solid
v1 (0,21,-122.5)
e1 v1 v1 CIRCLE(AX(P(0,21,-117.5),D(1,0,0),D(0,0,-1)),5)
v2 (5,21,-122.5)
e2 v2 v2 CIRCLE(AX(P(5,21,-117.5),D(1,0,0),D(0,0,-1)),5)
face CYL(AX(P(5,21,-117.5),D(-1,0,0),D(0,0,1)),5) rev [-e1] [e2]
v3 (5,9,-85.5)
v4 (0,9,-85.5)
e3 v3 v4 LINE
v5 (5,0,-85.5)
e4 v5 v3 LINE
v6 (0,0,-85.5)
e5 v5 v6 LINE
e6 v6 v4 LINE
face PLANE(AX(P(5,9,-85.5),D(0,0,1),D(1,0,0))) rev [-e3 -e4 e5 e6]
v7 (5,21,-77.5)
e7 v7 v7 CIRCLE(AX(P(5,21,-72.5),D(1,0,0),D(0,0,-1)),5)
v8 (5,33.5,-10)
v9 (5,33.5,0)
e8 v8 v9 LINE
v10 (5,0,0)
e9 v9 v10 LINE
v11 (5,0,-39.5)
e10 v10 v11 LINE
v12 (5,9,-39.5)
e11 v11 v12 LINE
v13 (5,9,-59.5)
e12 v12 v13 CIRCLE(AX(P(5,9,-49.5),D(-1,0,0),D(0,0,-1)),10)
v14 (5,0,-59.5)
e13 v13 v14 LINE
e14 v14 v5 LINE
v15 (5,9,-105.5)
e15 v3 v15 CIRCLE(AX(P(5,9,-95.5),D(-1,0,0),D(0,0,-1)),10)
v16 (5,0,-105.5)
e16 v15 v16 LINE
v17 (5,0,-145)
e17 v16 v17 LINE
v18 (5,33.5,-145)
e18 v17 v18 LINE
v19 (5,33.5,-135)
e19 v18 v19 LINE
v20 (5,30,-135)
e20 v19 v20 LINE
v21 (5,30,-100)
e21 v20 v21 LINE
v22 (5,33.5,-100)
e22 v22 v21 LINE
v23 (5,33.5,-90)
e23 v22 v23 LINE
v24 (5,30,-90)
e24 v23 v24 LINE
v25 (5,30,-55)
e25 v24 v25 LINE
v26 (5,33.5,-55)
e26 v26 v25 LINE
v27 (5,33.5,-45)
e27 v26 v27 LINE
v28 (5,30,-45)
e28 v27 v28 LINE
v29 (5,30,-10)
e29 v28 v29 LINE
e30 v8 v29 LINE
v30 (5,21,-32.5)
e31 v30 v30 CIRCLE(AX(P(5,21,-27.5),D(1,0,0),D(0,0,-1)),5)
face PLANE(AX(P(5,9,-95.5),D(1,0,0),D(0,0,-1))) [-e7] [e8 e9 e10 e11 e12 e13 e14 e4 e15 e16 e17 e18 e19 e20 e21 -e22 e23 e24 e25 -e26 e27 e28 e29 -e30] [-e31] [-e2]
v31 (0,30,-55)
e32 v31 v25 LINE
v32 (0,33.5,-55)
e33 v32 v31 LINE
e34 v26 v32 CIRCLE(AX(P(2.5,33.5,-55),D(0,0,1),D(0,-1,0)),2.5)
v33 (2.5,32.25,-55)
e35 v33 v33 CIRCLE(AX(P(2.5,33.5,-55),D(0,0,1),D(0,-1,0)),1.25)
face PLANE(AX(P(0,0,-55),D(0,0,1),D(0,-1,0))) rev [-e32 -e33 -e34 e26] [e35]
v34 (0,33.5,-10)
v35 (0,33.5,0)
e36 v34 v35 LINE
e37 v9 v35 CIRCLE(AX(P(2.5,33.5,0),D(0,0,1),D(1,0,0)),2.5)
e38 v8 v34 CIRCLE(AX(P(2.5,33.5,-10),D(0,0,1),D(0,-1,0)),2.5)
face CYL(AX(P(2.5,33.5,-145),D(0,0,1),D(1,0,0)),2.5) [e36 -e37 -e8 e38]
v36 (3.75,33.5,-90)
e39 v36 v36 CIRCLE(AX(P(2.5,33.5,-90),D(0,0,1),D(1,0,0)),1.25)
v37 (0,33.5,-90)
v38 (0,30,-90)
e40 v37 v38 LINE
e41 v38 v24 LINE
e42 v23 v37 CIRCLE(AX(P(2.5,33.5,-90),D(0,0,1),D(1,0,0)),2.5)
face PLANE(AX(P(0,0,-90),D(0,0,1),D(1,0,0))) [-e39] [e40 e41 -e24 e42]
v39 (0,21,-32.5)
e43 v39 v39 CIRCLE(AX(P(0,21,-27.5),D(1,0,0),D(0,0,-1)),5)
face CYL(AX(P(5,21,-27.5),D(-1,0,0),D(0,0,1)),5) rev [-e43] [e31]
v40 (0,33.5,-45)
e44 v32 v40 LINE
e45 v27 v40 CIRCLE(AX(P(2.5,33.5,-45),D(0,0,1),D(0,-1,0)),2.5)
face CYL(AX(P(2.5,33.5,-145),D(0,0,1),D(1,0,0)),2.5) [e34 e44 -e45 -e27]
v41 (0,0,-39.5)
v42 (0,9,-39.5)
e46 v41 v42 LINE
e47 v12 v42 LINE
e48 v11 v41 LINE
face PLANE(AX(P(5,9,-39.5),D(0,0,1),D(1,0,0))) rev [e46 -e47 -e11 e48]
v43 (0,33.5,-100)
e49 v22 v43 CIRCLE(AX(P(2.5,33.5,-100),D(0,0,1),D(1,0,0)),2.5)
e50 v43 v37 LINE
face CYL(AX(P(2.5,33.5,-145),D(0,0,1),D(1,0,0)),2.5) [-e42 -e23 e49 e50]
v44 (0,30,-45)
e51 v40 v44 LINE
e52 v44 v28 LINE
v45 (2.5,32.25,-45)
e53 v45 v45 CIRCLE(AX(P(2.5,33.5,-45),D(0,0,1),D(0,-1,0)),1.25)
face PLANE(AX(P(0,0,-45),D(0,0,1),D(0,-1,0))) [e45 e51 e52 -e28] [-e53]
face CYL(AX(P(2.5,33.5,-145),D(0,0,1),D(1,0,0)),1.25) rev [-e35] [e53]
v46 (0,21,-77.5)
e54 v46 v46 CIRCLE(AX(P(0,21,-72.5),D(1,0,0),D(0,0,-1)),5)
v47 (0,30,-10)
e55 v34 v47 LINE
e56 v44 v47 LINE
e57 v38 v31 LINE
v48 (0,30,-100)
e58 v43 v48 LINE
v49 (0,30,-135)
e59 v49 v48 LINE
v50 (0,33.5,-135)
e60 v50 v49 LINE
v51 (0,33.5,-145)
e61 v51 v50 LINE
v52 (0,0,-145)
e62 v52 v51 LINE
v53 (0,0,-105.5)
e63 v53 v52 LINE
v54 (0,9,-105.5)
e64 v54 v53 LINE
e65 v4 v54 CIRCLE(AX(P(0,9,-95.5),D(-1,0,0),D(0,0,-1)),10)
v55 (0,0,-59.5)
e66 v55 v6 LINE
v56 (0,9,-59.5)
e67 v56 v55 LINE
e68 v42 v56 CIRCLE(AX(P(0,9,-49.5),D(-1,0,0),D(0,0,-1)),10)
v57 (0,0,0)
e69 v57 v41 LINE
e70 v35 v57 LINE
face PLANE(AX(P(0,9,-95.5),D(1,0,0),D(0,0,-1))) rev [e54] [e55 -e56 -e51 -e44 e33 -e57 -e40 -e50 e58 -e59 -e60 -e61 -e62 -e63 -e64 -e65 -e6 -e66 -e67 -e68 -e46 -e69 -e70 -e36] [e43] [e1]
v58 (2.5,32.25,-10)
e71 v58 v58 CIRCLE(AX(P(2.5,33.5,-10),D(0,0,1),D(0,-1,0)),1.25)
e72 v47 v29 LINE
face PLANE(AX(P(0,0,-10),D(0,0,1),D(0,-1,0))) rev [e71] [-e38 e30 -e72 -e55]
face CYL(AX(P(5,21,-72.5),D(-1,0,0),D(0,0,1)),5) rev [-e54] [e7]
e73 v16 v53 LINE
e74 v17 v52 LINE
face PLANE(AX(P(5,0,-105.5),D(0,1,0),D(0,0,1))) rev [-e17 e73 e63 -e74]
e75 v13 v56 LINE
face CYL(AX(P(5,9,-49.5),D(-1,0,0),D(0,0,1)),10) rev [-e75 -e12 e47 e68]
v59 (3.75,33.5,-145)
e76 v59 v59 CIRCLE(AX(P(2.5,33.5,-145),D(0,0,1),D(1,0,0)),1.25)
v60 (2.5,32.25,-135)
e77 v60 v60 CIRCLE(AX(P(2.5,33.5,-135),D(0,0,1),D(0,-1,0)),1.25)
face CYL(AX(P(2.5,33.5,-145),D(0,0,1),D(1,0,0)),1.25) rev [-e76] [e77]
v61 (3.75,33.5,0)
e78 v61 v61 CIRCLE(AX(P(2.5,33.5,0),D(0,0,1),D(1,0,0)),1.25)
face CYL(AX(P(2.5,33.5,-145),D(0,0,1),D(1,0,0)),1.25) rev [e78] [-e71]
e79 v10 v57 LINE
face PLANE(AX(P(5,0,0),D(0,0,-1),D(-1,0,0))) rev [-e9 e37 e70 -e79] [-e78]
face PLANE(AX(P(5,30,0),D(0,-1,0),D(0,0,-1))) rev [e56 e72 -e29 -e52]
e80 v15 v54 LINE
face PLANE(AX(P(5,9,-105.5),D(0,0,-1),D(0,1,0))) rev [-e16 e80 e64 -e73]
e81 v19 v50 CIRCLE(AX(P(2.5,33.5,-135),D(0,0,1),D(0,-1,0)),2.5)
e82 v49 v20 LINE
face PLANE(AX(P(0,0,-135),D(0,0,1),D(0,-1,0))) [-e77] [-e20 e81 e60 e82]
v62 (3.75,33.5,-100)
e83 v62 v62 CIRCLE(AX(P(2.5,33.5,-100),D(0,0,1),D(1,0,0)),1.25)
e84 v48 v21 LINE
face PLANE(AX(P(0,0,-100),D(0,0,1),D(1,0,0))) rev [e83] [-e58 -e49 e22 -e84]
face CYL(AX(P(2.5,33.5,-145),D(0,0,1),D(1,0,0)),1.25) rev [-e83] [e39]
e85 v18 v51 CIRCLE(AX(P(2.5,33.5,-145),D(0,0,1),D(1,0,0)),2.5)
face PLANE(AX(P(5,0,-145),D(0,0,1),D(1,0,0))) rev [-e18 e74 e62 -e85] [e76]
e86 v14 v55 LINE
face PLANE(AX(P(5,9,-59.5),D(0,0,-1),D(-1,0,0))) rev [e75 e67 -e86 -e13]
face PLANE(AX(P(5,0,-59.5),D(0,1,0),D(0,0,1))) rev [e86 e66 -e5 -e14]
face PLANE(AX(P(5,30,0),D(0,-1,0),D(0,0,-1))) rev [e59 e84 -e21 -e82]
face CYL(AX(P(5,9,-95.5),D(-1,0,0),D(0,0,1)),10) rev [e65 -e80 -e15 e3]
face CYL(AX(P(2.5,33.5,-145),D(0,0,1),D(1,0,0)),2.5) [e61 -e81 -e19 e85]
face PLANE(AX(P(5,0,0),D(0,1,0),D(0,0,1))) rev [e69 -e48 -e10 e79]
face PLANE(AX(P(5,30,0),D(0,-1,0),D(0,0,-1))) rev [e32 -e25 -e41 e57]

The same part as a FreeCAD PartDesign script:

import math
import FreeCAD as App
import Part
import Sketcher
Q = App.Units.Quantity

doc = App.newDocument("Part")
body = doc.addObject("PartDesign::Body", "Body")

sketch1 = doc.addObject("Sketcher::SketchObject", "Sketch")
body.addObject(sketch1)
sketch1.AttachmentSupport = (doc.YZ_Plane, [""])
sketch1.MapMode = "FlatFace"
sketch1.addGeometry(Part.LineSegment(App.Vector(0, 0, 0), App.Vector(0, -40, 0)), False)
sketch1.addGeometry(Part.LineSegment(App.Vector(0, -40, 0), App.Vector(9, -40, 0)), False)
sketch1.addGeometry(Part.ArcOfCircle(Part.Circle(App.Vector(9, -50, 0), App.Vector(0, 0, 1), 10), math.radians(-90), math.radians(90)), False)
sketch1.addGeometry(Part.LineSegment(App.Vector(9, -60, 0), App.Vector(0, -60, 0)), False)
sketch1.addGeometry(Part.LineSegment(App.Vector(0, -60, 0), App.Vector(0, -86, 0)), False)
sketch1.addGeometry(Part.LineSegment(App.Vector(0, -86, 0), App.Vector(9, -86, 0)), False)
sketch1.addGeometry(Part.ArcOfCircle(Part.Circle(App.Vector(9, -96, 0), App.Vector(0, 0, 1), 10), math.radians(-90), math.radians(90)), False)
sketch1.addGeometry(Part.LineSegment(App.Vector(9, -106, 0), App.Vector(0, -106, 0)), False)
sketch1.addGeometry(Part.LineSegment(App.Vector(0, -106, 0), App.Vector(0, -145, 0)), False)
sketch1.addGeometry(Part.LineSegment(App.Vector(0, -145, 0), App.Vector(30, -145, 0)), False)
sketch1.addGeometry(Part.LineSegment(App.Vector(30, -145, 0), App.Vector(30, 0, 0)), False)
sketch1.addGeometry(Part.LineSegment(App.Vector(30, 0, 0), App.Vector(0, 0, 0)), False)
sketch1.addGeometry(Part.Circle(App.Vector(21, -28, 0), App.Vector(0, 0, 1), 5), False)
sketch1.addGeometry(Part.Circle(App.Vector(21, -72, 0), App.Vector(0, 0, 1), 5), False)
sketch1.addGeometry(Part.Circle(App.Vector(21, -118, 0), App.Vector(0, 0, 1), 5), False)
sketch1.addConstraint(Sketcher.Constraint("Coincident", 0, 2, 1, 1))
sketch1.addConstraint(Sketcher.Constraint("Tangent", 1, 2, 2, 2))
sketch1.addConstraint(Sketcher.Constraint("Tangent", 2, 1, 3, 1))
sketch1.addConstraint(Sketcher.Constraint("Coincident", 3, 2, 4, 1))
sketch1.addConstraint(Sketcher.Constraint("Coincident", 4, 2, 5, 1))
sketch1.addConstraint(Sketcher.Constraint("Tangent", 5, 2, 6, 2))
sketch1.addConstraint(Sketcher.Constraint("Tangent", 6, 1, 7, 1))
sketch1.addConstraint(Sketcher.Constraint("Coincident", 7, 2, 8, 1))
sketch1.addConstraint(Sketcher.Constraint("Coincident", 8, 2, 9, 1))
sketch1.addConstraint(Sketcher.Constraint("Coincident", 9, 2, 10, 1))
sketch1.addConstraint(Sketcher.Constraint("Coincident", 10, 2, 11, 1))
sketch1.addConstraint(Sketcher.Constraint("Coincident", 11, 2, 0, 1))
sketch1.addConstraint(Sketcher.Constraint("Vertical", 0))
sketch1.addConstraint(Sketcher.Constraint("Horizontal", 1))
sketch1.addConstraint(Sketcher.Constraint("Horizontal", 3))
sketch1.addConstraint(Sketcher.Constraint("Vertical", 4))
sketch1.addConstraint(Sketcher.Constraint("Horizontal", 5))
sketch1.addConstraint(Sketcher.Constraint("Horizontal", 7))
sketch1.addConstraint(Sketcher.Constraint("Vertical", 8))
sketch1.addConstraint(Sketcher.Constraint("Horizontal", 9))
sketch1.addConstraint(Sketcher.Constraint("Vertical", 10))
sketch1.addConstraint(Sketcher.Constraint("Horizontal", 11))
sketch1.addConstraint(Sketcher.Constraint("Coincident", 11, 2, -1, 1))
sketch1.addConstraint(Sketcher.Constraint("Equal", 2, 6))
sketch1.addConstraint(Sketcher.Constraint("Equal", 12, 13))
sketch1.addConstraint(Sketcher.Constraint("Equal", 13, 14))
sketch1.addConstraint(Sketcher.Constraint("PointOnObject", 3, 2, -2))
sketch1.addConstraint(Sketcher.Constraint("PointOnObject", 7, 2, -2))
sketch1.addConstraint(Sketcher.Constraint("Vertical", 2, 3, 6, 3))
sketch1.addConstraint(Sketcher.Constraint("Vertical", 12, 3, 13, 3))
sketch1.addConstraint(Sketcher.Constraint("Vertical", 13, 3, 14, 3))
sketch1.addConstraint(Sketcher.Constraint("Equal", 0, 8))
sketch1.addConstraint(Sketcher.Constraint("Diameter", 12, Q("10 mm")))
sketch1.addConstraint(Sketcher.Constraint("Radius", 2, Q("10 mm")))
sketch1.addConstraint(Sketcher.Constraint("DistanceX", 1, 1, 1, 2, Q("9 mm")))
sketch1.addConstraint(Sketcher.Constraint("DistanceX", 9, 1, 9, 2, Q("30 mm")))
sketch1.addConstraint(Sketcher.Constraint("DistanceY", 4, 2, 4, 1, Q("26 mm")))
sketch1.addConstraint(Sketcher.Constraint("DistanceY", 10, 1, 10, 2, Q("145 mm")))
sketch1.addConstraint(Sketcher.Constraint("DistanceX", -1, 1, 12, 3, Q("21 mm")))
sketch1.addConstraint(Sketcher.Constraint("DistanceY", 2, 3, 12, 3, Q("22 mm")))
sketch1.addConstraint(Sketcher.Constraint("DistanceY", 13, 3, 2, 3, Q("23 mm")))
sketch1.addConstraint(Sketcher.Constraint("DistanceY", 14, 3, 6, 3, Q("22 mm")))
pad1 = doc.addObject("PartDesign::Pad", "Pad")
body.addObject(pad1)
pad1.Profile = sketch1
pad1.Length = 5

sketch2 = doc.addObject("Sketcher::SketchObject", "Sketch001")
body.addObject(sketch2)
sketch2.AttachmentSupport = (doc.YZ_Plane, [""])
sketch2.MapMode = "FlatFace"
sketch2.AttachmentOffset = App.Placement(App.Vector(0, 0, 5), App.Rotation())
sketch2.addGeometry(Part.LineSegment(App.Vector(36, 0, 0), App.Vector(30, 0, 0)), False)
sketch2.addGeometry(Part.LineSegment(App.Vector(30, 0, 0), App.Vector(30, -10, 0)), False)
sketch2.addGeometry(Part.LineSegment(App.Vector(30, -10, 0), App.Vector(36, -10, 0)), False)
sketch2.addGeometry(Part.LineSegment(App.Vector(36, -10, 0), App.Vector(36, 0, 0)), False)
sketch2.addGeometry(Part.LineSegment(App.Vector(36, -45, 0), App.Vector(30, -45, 0)), False)
sketch2.addGeometry(Part.LineSegment(App.Vector(30, -45, 0), App.Vector(30, -55, 0)), False)
sketch2.addGeometry(Part.LineSegment(App.Vector(30, -55, 0), App.Vector(36, -55, 0)), False)
sketch2.addGeometry(Part.LineSegment(App.Vector(36, -55, 0), App.Vector(36, -45, 0)), False)
sketch2.addGeometry(Part.LineSegment(App.Vector(36, -90, 0), App.Vector(30, -90, 0)), False)
sketch2.addGeometry(Part.LineSegment(App.Vector(30, -90, 0), App.Vector(30, -100, 0)), False)
sketch2.addGeometry(Part.LineSegment(App.Vector(30, -100, 0), App.Vector(36, -100, 0)), False)
sketch2.addGeometry(Part.LineSegment(App.Vector(36, -100, 0), App.Vector(36, -90, 0)), False)
sketch2.addGeometry(Part.LineSegment(App.Vector(36, -135, 0), App.Vector(30, -135, 0)), False)
sketch2.addGeometry(Part.LineSegment(App.Vector(30, -135, 0), App.Vector(30, -145, 0)), False)
sketch2.addGeometry(Part.LineSegment(App.Vector(30, -145, 0), App.Vector(36, -145, 0)), False)
sketch2.addGeometry(Part.LineSegment(App.Vector(36, -145, 0), App.Vector(36, -135, 0)), False)
sketch2.addConstraint(Sketcher.Constraint("Coincident", 0, 2, 1, 1))
sketch2.addConstraint(Sketcher.Constraint("Coincident", 1, 2, 2, 1))
sketch2.addConstraint(Sketcher.Constraint("Coincident", 2, 2, 3, 1))
sketch2.addConstraint(Sketcher.Constraint("Coincident", 3, 2, 0, 1))
sketch2.addConstraint(Sketcher.Constraint("Coincident", 4, 2, 5, 1))
sketch2.addConstraint(Sketcher.Constraint("Coincident", 5, 2, 6, 1))
sketch2.addConstraint(Sketcher.Constraint("Coincident", 6, 2, 7, 1))
sketch2.addConstraint(Sketcher.Constraint("Coincident", 7, 2, 4, 1))
sketch2.addConstraint(Sketcher.Constraint("Coincident", 8, 2, 9, 1))
sketch2.addConstraint(Sketcher.Constraint("Coincident", 9, 2, 10, 1))
sketch2.addConstraint(Sketcher.Constraint("Coincident", 10, 2, 11, 1))
sketch2.addConstraint(Sketcher.Constraint("Coincident", 11, 2, 8, 1))
sketch2.addConstraint(Sketcher.Constraint("Coincident", 12, 2, 13, 1))
sketch2.addConstraint(Sketcher.Constraint("Coincident", 13, 2, 14, 1))
sketch2.addConstraint(Sketcher.Constraint("Coincident", 14, 2, 15, 1))
sketch2.addConstraint(Sketcher.Constraint("Coincident", 15, 2, 12, 1))
sketch2.addConstraint(Sketcher.Constraint("Horizontal", 0))
sketch2.addConstraint(Sketcher.Constraint("Vertical", 1))
sketch2.addConstraint(Sketcher.Constraint("Horizontal", 2))
sketch2.addConstraint(Sketcher.Constraint("Vertical", 3))
sketch2.addConstraint(Sketcher.Constraint("Horizontal", 4))
sketch2.addConstraint(Sketcher.Constraint("Vertical", 5))
sketch2.addConstraint(Sketcher.Constraint("Horizontal", 6))
sketch2.addConstraint(Sketcher.Constraint("Vertical", 7))
sketch2.addConstraint(Sketcher.Constraint("Horizontal", 8))
sketch2.addConstraint(Sketcher.Constraint("Vertical", 9))
sketch2.addConstraint(Sketcher.Constraint("Horizontal", 10))
sketch2.addConstraint(Sketcher.Constraint("Vertical", 11))
sketch2.addConstraint(Sketcher.Constraint("Horizontal", 12))
sketch2.addConstraint(Sketcher.Constraint("Vertical", 13))
sketch2.addConstraint(Sketcher.Constraint("Horizontal", 14))
sketch2.addConstraint(Sketcher.Constraint("Vertical", 15))
sketch2.addConstraint(Sketcher.Constraint("PointOnObject", 0, 2, -1))
sketch2.addConstraint(Sketcher.Constraint("Vertical", 1, 2, 4, 2))
sketch2.addConstraint(Sketcher.Constraint("Vertical", 3, 2, 6, 2))
sketch2.addConstraint(Sketcher.Constraint("Vertical", 5, 2, 8, 2))
sketch2.addConstraint(Sketcher.Constraint("Vertical", 7, 2, 10, 2))
sketch2.addConstraint(Sketcher.Constraint("Vertical", 9, 2, 12, 2))
sketch2.addConstraint(Sketcher.Constraint("Vertical", 11, 2, 14, 2))
sketch2.addConstraint(Sketcher.Constraint("Equal", 3, 5))
sketch2.addConstraint(Sketcher.Constraint("Equal", 7, 9))
sketch2.addConstraint(Sketcher.Constraint("Equal", 11, 13))
sketch2.addConstraint(Sketcher.Constraint("DistanceX", 0, 2, 0, 1, Q("6 mm")))
sketch2.addConstraint(Sketcher.Constraint("DistanceY", 1, 2, 1, 1, Q("10 mm")))
sketch2.addConstraint(Sketcher.Constraint("DistanceX", -1, 1, 0, 2, Q("30 mm")))
sketch2.addConstraint(Sketcher.Constraint("DistanceY", 4, 2, -1, 1, Q("45 mm")))
sketch2.addConstraint(Sketcher.Constraint("DistanceY", 8, 2, -1, 1, Q("90 mm")))
sketch2.addConstraint(Sketcher.Constraint("DistanceY", 12, 2, -1, 1, Q("135 mm")))
pad2 = doc.addObject("PartDesign::Pad", "Pad001")
body.addObject(pad2)
pad2.Profile = sketch2
pad2.Length = 5
pad2.Reversed = True

sketch3 = doc.addObject("Sketcher::SketchObject", "Sketch002")
body.addObject(sketch3)
sketch3.AttachmentSupport = (doc.XY_Plane, [""])
sketch3.MapMode = "FlatFace"
sketch3.addGeometry(Part.LineSegment(App.Vector(0, 36, 0), App.Vector(0, 33.5, 0)), False)
sketch3.addGeometry(Part.ArcOfCircle(Part.Circle(App.Vector(2.5, 33.5, 0), App.Vector(0, 0, 1), 2.5), math.radians(90), math.radians(180)), False)
sketch3.addGeometry(Part.LineSegment(App.Vector(2.5, 36, 0), App.Vector(0, 36, 0)), False)
sketch3.addGeometry(Part.ArcOfCircle(Part.Circle(App.Vector(2.5, 33.5, 0), App.Vector(0, 0, 1), 2.5), math.radians(0), math.radians(90)), False)
sketch3.addGeometry(Part.LineSegment(App.Vector(5, 33.5, 0), App.Vector(5, 36, 0)), False)
sketch3.addGeometry(Part.LineSegment(App.Vector(5, 36, 0), App.Vector(2.5, 36, 0)), False)
sketch3.addGeometry(Part.Circle(App.Vector(2.5, 33.5, 0), App.Vector(0, 0, 1), 1.2), False)
sketch3.addConstraint(Sketcher.Constraint("Tangent", 0, 2, 1, 2))
sketch3.addConstraint(Sketcher.Constraint("Tangent", 1, 1, 2, 1))
sketch3.addConstraint(Sketcher.Constraint("Coincident", 2, 2, 0, 1))
sketch3.addConstraint(Sketcher.Constraint("Tangent", 3, 1, 4, 1))
sketch3.addConstraint(Sketcher.Constraint("Coincident", 4, 2, 5, 1))
sketch3.addConstraint(Sketcher.Constraint("Tangent", 5, 2, 3, 2))
sketch3.addConstraint(Sketcher.Constraint("Vertical", 0))
sketch3.addConstraint(Sketcher.Constraint("Horizontal", 2))
sketch3.addConstraint(Sketcher.Constraint("Vertical", 4))
sketch3.addConstraint(Sketcher.Constraint("Horizontal", 5))
sketch3.addConstraint(Sketcher.Constraint("Coincident", 3, 3, 1, 3))
sketch3.addConstraint(Sketcher.Constraint("Coincident", 6, 3, 1, 3))
sketch3.addConstraint(Sketcher.Constraint("Equal", 1, 3))
sketch3.addConstraint(Sketcher.Constraint("PointOnObject", 0, 2, -2))
sketch3.addConstraint(Sketcher.Constraint("Diameter", 6, Q("2.5 mm")))
sketch3.addConstraint(Sketcher.Constraint("Radius", 1, Q("2.5 mm")))
sketch3.addConstraint(Sketcher.Constraint("DistanceY", -1, 1, 1, 1, Q("36 mm")))
pocket1 = doc.addObject("PartDesign::Pocket", "Pocket")
body.addObject(pocket1)
pocket1.Profile = sketch3
pocket1.Type = "ThroughAll"

doc.recompute()
